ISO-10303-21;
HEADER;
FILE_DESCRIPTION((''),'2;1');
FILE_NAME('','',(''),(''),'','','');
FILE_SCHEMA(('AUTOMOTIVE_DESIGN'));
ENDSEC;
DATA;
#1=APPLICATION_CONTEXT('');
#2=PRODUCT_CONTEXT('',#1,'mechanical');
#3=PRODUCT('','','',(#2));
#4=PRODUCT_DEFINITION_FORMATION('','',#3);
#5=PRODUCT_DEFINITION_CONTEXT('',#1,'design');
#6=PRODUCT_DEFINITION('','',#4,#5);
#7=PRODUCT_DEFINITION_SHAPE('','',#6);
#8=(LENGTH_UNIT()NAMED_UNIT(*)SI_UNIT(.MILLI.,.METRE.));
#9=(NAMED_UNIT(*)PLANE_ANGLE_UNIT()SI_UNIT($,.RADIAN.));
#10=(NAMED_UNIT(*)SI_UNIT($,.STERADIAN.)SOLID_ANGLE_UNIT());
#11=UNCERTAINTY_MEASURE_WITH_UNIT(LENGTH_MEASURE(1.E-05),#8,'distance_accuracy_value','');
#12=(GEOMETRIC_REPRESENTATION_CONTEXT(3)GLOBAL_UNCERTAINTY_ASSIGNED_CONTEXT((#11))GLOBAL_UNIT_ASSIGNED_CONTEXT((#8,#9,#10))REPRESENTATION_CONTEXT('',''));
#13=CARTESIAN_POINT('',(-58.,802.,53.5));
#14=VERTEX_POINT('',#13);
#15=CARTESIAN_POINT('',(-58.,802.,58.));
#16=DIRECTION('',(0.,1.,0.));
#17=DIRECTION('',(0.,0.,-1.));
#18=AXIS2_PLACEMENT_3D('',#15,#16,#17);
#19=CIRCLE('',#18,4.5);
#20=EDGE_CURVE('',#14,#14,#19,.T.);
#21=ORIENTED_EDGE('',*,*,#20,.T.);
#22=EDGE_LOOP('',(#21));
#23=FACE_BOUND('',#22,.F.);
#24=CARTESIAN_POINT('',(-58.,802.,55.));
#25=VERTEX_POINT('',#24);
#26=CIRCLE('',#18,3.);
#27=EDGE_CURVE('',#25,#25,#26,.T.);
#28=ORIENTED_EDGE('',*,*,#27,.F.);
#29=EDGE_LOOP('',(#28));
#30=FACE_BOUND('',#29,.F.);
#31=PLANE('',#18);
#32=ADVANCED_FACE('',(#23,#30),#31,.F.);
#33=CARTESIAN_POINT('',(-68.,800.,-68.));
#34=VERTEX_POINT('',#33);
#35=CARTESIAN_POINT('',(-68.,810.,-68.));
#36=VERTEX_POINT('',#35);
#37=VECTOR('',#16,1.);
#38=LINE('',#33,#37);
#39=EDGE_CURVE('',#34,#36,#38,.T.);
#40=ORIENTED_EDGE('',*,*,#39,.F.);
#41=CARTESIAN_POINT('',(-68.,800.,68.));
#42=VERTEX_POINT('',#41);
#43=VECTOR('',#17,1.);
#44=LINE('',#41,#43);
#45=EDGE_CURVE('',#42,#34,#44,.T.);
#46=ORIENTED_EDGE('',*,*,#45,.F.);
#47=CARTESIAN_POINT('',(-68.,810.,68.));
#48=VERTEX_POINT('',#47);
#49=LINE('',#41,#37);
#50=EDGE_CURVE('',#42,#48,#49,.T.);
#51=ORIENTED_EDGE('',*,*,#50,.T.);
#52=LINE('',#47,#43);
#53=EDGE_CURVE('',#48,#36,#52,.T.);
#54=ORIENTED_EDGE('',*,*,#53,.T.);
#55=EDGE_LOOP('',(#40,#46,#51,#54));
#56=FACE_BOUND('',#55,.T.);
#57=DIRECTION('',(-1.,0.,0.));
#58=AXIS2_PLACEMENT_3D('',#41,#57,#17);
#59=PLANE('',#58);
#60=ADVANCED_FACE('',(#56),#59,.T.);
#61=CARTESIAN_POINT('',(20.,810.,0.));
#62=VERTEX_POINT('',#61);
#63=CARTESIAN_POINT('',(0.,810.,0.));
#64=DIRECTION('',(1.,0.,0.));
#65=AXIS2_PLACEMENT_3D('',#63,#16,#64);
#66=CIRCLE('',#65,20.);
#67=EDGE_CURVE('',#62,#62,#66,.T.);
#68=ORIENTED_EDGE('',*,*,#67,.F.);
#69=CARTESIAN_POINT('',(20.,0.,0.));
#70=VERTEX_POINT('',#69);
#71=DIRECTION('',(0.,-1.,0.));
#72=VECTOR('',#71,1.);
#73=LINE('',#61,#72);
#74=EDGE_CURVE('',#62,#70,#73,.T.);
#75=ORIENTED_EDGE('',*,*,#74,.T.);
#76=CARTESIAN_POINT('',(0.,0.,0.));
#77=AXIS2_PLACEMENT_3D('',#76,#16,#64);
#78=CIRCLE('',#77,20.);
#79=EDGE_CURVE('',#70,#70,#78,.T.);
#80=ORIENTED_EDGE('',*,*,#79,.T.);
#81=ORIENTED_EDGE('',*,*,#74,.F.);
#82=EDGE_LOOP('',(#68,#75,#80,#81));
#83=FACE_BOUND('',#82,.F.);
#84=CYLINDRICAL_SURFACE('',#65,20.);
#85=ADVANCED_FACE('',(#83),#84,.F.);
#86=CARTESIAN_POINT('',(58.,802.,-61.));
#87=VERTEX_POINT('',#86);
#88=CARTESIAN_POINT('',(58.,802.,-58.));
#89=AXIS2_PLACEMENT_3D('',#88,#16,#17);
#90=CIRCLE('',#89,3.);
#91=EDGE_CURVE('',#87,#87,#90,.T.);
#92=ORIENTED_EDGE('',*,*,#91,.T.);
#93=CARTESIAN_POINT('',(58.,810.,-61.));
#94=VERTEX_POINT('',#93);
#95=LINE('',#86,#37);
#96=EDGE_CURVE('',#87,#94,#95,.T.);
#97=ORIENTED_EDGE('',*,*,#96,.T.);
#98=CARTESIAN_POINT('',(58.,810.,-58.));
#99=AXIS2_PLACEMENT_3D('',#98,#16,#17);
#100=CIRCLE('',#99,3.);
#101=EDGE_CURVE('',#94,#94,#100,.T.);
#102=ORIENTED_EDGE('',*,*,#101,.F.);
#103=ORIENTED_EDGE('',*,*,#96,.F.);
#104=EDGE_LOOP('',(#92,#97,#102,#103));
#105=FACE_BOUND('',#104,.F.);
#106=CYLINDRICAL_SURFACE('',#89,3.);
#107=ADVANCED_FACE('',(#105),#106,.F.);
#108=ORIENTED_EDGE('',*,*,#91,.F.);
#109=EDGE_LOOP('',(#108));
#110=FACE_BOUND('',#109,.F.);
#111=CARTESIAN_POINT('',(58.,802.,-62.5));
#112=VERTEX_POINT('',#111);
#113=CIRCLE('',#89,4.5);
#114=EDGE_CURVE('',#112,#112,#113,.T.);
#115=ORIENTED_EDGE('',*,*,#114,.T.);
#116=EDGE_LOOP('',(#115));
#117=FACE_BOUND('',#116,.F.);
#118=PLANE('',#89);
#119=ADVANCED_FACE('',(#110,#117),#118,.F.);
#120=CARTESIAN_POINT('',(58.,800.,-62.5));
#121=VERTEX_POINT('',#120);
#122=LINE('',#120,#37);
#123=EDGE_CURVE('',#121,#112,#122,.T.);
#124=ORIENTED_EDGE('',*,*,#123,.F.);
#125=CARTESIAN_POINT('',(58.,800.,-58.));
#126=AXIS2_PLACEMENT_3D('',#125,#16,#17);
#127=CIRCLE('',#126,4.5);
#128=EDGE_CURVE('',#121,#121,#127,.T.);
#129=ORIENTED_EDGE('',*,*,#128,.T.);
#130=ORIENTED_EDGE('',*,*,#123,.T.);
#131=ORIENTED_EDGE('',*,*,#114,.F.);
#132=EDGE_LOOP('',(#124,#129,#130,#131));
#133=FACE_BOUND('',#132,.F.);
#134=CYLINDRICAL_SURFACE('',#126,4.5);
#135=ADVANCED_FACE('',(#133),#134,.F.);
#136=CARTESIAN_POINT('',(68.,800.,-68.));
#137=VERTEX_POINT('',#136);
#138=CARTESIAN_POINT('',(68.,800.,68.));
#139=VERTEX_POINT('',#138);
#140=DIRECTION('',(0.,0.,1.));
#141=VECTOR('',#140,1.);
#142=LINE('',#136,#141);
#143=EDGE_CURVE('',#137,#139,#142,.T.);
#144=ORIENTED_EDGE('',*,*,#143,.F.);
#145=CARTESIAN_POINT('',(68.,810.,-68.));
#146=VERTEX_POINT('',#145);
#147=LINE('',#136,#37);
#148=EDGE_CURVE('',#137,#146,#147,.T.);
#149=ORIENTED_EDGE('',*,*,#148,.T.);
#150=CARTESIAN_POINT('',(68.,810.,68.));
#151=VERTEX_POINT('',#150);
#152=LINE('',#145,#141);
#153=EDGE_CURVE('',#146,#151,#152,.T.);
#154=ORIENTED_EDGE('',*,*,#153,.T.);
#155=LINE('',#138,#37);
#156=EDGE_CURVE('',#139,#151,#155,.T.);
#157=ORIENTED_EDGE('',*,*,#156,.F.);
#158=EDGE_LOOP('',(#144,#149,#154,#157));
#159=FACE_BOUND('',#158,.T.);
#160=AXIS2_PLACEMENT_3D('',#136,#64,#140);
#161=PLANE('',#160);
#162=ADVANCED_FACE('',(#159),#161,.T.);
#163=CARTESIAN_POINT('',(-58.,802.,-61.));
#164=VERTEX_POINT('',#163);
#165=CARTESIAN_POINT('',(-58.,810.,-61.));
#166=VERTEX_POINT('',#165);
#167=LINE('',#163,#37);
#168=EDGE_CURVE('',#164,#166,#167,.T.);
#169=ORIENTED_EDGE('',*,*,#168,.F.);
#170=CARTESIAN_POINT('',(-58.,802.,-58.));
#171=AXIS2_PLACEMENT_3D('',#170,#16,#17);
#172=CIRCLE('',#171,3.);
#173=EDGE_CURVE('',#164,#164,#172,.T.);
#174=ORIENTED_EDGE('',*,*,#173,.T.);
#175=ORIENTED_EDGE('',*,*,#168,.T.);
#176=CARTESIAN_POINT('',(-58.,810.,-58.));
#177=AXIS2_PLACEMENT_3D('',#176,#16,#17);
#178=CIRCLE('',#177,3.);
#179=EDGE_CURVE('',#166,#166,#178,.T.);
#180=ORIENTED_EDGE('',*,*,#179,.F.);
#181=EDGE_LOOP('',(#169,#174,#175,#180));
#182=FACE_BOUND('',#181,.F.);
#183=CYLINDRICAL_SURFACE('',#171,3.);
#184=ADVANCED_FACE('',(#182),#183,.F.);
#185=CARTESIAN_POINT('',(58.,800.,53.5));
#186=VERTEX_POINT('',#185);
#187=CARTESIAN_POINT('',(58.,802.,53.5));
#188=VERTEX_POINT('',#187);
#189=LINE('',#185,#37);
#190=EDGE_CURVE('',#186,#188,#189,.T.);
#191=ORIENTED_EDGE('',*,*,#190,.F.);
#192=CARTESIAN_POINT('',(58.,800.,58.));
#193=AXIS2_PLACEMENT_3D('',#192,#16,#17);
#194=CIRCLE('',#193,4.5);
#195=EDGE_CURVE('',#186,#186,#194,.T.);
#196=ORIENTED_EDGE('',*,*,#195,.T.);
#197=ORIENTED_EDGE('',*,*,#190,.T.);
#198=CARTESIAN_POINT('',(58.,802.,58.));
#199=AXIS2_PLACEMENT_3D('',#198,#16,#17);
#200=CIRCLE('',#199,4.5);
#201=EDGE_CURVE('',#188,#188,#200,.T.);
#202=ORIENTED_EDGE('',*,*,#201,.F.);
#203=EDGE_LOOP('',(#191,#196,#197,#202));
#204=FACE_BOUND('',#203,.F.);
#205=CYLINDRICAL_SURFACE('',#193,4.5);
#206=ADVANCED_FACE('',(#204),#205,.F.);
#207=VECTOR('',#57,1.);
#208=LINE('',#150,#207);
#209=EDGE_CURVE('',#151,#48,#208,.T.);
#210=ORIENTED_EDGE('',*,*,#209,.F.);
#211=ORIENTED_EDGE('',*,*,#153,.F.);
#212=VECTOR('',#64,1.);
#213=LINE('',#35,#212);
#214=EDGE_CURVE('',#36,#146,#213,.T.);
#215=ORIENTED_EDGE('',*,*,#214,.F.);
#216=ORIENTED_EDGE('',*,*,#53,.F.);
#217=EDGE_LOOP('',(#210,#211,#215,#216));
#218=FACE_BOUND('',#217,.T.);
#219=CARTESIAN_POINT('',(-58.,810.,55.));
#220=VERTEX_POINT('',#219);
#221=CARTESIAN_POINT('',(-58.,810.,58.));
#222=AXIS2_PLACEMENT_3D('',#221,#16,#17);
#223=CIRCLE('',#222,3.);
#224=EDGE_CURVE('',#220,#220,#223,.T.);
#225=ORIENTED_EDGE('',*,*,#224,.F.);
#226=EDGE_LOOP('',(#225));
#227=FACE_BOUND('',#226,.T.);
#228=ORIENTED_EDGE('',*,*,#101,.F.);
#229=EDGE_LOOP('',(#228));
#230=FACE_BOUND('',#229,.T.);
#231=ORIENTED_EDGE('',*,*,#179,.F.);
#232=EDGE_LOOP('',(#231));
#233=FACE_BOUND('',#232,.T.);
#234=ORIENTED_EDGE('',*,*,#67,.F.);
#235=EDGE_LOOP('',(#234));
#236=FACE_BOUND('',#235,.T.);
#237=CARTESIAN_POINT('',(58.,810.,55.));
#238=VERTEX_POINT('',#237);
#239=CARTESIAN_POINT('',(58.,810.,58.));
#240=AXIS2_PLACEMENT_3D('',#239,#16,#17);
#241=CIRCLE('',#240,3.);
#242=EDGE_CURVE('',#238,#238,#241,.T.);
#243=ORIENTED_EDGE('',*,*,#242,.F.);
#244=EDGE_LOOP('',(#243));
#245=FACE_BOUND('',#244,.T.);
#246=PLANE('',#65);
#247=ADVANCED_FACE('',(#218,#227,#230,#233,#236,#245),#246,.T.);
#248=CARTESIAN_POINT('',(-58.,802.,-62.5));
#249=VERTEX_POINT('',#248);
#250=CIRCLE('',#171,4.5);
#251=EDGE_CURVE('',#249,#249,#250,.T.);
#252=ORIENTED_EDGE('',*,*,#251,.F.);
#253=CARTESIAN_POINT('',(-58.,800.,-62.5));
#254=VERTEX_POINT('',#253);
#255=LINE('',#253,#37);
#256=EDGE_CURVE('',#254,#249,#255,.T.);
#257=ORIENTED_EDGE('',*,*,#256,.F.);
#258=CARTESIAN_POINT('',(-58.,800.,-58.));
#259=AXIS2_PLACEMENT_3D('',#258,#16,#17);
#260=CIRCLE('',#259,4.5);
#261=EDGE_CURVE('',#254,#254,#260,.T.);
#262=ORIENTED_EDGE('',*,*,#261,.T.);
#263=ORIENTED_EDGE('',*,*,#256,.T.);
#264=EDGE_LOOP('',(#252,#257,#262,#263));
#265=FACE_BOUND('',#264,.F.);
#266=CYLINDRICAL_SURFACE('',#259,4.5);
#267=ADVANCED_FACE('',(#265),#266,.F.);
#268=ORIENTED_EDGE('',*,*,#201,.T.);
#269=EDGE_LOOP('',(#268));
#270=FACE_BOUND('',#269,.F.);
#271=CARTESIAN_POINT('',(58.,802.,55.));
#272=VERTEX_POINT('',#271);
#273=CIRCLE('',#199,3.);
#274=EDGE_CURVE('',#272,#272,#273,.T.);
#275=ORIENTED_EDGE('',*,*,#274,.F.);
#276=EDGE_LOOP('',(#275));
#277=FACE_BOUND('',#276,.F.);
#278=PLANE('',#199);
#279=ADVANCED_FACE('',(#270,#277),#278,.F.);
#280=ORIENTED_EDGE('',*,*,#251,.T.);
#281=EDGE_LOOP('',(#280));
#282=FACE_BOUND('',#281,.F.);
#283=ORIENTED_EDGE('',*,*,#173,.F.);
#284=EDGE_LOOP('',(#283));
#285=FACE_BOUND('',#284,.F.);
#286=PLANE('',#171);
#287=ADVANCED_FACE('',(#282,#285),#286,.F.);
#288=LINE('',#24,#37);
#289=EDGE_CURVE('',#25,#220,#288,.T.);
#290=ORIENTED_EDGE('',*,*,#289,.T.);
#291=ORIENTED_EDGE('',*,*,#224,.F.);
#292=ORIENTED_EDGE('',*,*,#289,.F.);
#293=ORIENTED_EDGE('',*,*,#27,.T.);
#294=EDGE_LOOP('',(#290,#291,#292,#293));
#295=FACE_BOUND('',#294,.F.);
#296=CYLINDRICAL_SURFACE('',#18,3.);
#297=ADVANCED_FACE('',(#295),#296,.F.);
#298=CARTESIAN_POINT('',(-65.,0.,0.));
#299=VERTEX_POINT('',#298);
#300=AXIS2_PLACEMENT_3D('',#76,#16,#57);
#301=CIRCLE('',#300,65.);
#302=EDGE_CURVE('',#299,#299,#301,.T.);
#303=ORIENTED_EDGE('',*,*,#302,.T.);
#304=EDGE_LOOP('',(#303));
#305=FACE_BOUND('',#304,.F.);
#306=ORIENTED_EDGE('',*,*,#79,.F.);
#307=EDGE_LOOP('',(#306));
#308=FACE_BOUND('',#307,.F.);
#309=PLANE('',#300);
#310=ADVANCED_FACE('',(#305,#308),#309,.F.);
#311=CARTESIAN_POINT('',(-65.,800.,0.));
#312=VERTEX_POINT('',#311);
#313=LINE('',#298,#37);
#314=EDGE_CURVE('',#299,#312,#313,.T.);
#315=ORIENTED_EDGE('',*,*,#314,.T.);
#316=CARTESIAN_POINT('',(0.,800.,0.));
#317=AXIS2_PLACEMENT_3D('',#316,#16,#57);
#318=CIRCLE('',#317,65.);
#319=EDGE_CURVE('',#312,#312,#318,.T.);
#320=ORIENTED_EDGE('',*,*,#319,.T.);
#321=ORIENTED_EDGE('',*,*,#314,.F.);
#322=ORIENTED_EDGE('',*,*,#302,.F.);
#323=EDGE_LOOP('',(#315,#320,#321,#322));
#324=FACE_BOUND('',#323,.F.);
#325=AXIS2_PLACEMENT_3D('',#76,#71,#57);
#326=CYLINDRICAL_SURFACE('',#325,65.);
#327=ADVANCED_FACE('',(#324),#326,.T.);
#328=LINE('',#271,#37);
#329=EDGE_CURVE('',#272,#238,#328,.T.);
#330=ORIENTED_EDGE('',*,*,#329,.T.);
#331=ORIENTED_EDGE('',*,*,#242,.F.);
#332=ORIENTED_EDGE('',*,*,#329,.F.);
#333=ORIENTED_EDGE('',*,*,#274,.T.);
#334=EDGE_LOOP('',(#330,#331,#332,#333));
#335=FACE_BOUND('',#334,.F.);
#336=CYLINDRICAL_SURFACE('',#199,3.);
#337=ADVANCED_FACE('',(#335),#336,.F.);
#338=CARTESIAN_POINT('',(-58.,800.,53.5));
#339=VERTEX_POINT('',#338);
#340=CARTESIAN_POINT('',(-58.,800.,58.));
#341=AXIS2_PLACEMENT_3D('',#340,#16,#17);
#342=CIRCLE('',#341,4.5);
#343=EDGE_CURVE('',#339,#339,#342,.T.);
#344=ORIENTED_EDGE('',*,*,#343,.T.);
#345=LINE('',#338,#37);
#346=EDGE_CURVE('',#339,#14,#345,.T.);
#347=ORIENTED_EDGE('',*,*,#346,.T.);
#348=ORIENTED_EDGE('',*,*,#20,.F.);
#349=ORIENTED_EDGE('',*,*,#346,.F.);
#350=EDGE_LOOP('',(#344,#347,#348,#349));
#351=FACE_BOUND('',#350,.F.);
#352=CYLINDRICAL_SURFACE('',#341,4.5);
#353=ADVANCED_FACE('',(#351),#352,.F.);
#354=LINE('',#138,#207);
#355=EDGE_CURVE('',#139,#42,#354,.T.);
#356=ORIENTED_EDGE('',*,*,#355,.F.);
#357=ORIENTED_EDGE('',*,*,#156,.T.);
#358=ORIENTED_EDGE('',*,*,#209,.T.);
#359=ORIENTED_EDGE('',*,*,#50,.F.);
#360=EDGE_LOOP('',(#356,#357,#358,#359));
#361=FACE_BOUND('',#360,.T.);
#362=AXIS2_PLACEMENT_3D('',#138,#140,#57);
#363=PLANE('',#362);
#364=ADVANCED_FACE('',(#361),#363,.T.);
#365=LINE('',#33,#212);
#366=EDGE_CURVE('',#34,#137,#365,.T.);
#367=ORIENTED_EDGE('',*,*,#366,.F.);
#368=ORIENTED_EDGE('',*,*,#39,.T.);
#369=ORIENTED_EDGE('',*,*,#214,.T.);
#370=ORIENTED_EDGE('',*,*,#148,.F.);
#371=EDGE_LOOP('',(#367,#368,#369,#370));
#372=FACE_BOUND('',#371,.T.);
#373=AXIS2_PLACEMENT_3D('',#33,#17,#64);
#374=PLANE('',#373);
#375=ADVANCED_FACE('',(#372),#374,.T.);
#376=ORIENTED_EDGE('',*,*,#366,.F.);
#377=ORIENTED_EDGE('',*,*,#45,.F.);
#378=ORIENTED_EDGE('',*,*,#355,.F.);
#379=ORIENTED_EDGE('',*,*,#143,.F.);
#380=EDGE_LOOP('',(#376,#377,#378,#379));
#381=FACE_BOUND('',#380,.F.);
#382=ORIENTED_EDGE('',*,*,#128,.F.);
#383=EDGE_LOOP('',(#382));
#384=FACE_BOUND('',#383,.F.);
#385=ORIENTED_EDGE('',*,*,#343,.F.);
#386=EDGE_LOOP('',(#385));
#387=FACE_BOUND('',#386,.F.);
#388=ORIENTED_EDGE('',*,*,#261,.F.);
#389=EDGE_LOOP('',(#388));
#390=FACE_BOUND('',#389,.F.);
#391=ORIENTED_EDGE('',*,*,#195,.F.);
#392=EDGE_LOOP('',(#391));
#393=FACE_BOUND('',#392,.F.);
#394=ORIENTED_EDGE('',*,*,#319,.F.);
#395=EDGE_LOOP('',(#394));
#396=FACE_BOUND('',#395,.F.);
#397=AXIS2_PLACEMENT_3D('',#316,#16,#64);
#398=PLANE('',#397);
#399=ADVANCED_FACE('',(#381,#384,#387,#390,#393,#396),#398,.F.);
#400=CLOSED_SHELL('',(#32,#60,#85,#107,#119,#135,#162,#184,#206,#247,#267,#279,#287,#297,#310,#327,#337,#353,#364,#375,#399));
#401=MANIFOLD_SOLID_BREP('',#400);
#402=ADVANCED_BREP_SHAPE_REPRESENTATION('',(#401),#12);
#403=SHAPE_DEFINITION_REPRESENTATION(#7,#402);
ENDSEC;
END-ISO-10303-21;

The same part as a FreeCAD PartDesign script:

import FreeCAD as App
import Part
import Sketcher
from FreeCAD import Vector
Q = App.Units.Quantity

doc = App.newDocument("Part")
body = doc.addObject("PartDesign::Body", "Body")

sketch1 = doc.addObject("Sketcher::SketchObject", "Sketch")
body.addObject(sketch1)
sketch1.AttachmentSupport = (doc.XZ_Plane, [""])
sketch1.MapMode = "FlatFace"
sketch1.addGeometry(Part.Circle(Vector(0, 0, 0), Vector(0, 0, 1), 65), False)
sketch1.addConstraint(Sketcher.Constraint("Coincident", 0, 3, -1, 1))
sketch1.addConstraint(Sketcher.Constraint("Diameter", 0, Q("130 mm")))
pad1 = doc.addObject("PartDesign::Pad", "Pad")
body.addObject(pad1)
pad1.Profile = sketch1
pad1.Length = 800
pad1.Reversed = True

sketch2 = doc.addObject("Sketcher::SketchObject", "Sketch001")
body.addObject(sketch2)
sketch2.AttachmentSupport = (doc.XZ_Plane, [""])
sketch2.MapMode = "FlatFace"
sketch2.AttachmentOffset = App.Placement(Vector(0, 0, -800), App.Rotation())
sketch2.addGeometry(Part.LineSegment(Vector(68, -68, 0), Vector(-68, -68, 0)), False)
sketch2.addGeometry(Part.LineSegment(Vector(-68, -68, 0), Vector(-68, 68, 0)), False)
sketch2.addGeometry(Part.LineSegment(Vector(-68, 68, 0), Vector(68, 68, 0)), False)
sketch2.addGeometry(Part.LineSegment(Vector(68, 68, 0), Vector(68, -68, 0)), False)
sketch2.addConstraint(Sketcher.Constraint("Coincident", 0, 2, 1, 1))
sketch2.addConstraint(Sketcher.Constraint("Coincident", 1, 2, 2, 1))
sketch2.addConstraint(Sketcher.Constraint("Coincident", 2, 2, 3, 1))
sketch2.addConstraint(Sketcher.Constraint("Coincident", 3, 2, 0, 1))
sketch2.addConstraint(Sketcher.Constraint("Horizontal", 0))
sketch2.addConstraint(Sketcher.Constraint("Vertical", 1))
sketch2.addConstraint(Sketcher.Constraint("Horizontal", 2))
sketch2.addConstraint(Sketcher.Constraint("Vertical", 3))
sketch2.addConstraint(Sketcher.Constraint("Symmetric", 0, 2, 2, 2, -1, 1))
sketch2.addConstraint(Sketcher.Constraint("Equal", 2, 1))
sketch2.addConstraint(Sketcher.Constraint("DistanceX", 0, 2, 0, 1, Q("136 mm")))
pad2 = doc.addObject("PartDesign::Pad", "Pad001")
body.addObject(pad2)
pad2.Profile = sketch2
pad2.Length = 10
pad2.Reversed = True

sketch3 = doc.addObject("Sketcher::SketchObject", "Sketch002")
body.addObject(sketch3)
sketch3.AttachmentSupport = (doc.XZ_Plane, [""])
sketch3.MapMode = "FlatFace"
sketch3.AttachmentOffset = App.Placement(Vector(0, 0, -810), App.Rotation())
sketch3.addGeometry(Part.Circle(Vector(0, 0, 0), Vector(0, 0, 1), 20), False)
sketch3.addConstraint(Sketcher.Constraint("Coincident", 0, 3, -1, 1))
sketch3.addConstraint(Sketcher.Constraint("Diameter", 0, Q("40 mm")))
pocket1 = doc.addObject("PartDesign::Pocket", "Pocket")
body.addObject(pocket1)
pocket1.Profile = sketch3
pocket1.Type = "UpToFirst"
pocket1.Reversed = True

sketch4 = doc.addObject("Sketcher::SketchObject", "Sketch003")
body.addObject(sketch4)
sketch4.AttachmentSupport = (doc.XZ_Plane, [""])
sketch4.MapMode = "FlatFace"
sketch4.AttachmentOffset = App.Placement(Vector(0, 0, -800), App.Rotation())
sketch4.addGeometry(Part.Circle(Vector(58, -58, 0), Vector(0, 0, 1), 3), False)
sketch4.addGeometry(Part.Circle(Vector(-58, -58, 0), Vector(0, 0, 1), 3), False)
sketch4.addGeometry(Part.Circle(Vector(-58, 58, 0), Vector(0, 0, 1), 3), False)
sketch4.addGeometry(Part.Circle(Vector(58, 58, 0), Vector(0, 0, 1), 3), False)
sketch4.addConstraint(Sketcher.Constraint("Equal", 0, 1))
sketch4.addConstraint(Sketcher.Constraint("Equal", 1, 2))
sketch4.addConstraint(Sketcher.Constraint("Equal", 2, 3))
sketch4.addConstraint(Sketcher.Constraint("Symmetric", 0, 3, 2, 3, -1, 1))
sketch4.addConstraint(Sketcher.Constraint("Symmetric", 1, 3, 3, 3, -1, 1))
sketch4.addConstraint(Sketcher.Constraint("Symmetric", 0, 3, 1, 3, -2))
sketch4.addConstraint(Sketcher.Constraint("Diameter", 0, Q("6 mm")))
sketch4.addConstraint(Sketcher.Constraint("DistanceX", -1, 1, 0, 3, Q("58 mm")))
sketch4.addConstraint(Sketcher.Constraint("DistanceY", 0, 3, -1, 1, Q("58 mm")))
doc.recompute()
hole = doc.addObject("PartDesign::Hole", "Hole")
body.addObject(hole)
hole.Profile = sketch4
hole.ThreadType = "None"
hole.Diameter = 6
hole.DepthType = "Dimension"
hole.Depth = 10
hole.DrillPoint = "Angled"
hole.DrillPointAngle = 118
hole.HoleCutType = "Counterbore"
hole.HoleCutDiameter = 9
hole.HoleCutDepth = 2

doc.recompute()
